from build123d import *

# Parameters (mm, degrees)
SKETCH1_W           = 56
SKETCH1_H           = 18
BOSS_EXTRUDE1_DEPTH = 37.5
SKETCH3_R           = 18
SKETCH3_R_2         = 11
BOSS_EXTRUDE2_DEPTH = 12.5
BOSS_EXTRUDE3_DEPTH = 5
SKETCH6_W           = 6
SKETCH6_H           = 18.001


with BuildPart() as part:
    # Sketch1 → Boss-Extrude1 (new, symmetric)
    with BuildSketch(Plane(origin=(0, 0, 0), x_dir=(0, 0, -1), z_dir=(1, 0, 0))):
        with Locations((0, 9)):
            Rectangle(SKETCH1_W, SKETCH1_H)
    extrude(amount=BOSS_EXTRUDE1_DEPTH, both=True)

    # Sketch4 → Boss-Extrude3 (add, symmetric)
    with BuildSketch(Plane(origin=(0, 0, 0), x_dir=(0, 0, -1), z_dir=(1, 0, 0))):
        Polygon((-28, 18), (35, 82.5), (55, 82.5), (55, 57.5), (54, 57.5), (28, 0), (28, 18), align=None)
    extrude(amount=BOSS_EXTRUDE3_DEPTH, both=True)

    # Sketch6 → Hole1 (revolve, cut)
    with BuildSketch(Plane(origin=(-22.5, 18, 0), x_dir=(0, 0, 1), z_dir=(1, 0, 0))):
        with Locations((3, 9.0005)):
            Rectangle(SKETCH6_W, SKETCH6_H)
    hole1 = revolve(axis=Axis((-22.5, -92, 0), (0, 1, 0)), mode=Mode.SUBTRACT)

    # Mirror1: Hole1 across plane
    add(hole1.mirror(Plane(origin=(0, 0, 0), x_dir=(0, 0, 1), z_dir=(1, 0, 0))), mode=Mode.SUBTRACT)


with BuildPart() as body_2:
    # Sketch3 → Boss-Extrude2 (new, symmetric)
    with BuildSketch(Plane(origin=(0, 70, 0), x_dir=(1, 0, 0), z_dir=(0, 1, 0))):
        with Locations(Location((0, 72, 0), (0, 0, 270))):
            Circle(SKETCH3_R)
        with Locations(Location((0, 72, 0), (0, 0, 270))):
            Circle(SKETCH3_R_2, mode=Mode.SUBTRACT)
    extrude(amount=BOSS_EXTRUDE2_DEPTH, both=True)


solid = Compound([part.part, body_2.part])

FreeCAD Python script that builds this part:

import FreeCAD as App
import Part
import Sketcher
from FreeCAD import Vector
Q = App.Units.Quantity

doc = App.newDocument("Part")
body = doc.addObject("PartDesign::Body", "Body")

# Sketch on YZ plane
sketch1 = doc.addObject("Sketcher::SketchObject", "Sketch")
body.addObject(sketch1)
sketch1.AttachmentSupport = (doc.YZ_Plane, [""])
sketch1.MapMode = "FlatFace"
sketch1.addGeometry([
    Part.LineSegment(Vector(18, 28, 0), Vector(0, 28, 0)),
    Part.LineSegment(Vector(0, 28, 0), Vector(0, -28, 0)),
    Part.LineSegment(Vector(0, -28, 0), Vector(18, -28, 0)),
    Part.LineSegment(Vector(18, -28, 0), Vector(18, 28, 0)),
], False)
sketch1.addConstraint([
    Sketcher.Constraint("Coincident", 0, 2, 1, 1),
    Sketcher.Constraint("Coincident", 1, 2, 2, 1),
    Sketcher.Constraint("Coincident", 2, 2, 3, 1),
    Sketcher.Constraint("Coincident", 3, 2, 0, 1),
    Sketcher.Constraint("Horizontal", 0),
    Sketcher.Constraint("Vertical", 1),
    Sketcher.Constraint("Horizontal", 2),
    Sketcher.Constraint("Vertical", 3),
    Sketcher.Constraint("Symmetric", 0, 2, 1, 2, -1, 1),
    Sketcher.Constraint("DistanceX", 0, 2, 0, 1, Q("18 mm")),
    Sketcher.Constraint("DistanceY", 1, 2, 1, 1, Q("56 mm")),
])
pad1 = doc.addObject("PartDesign::Pad", "Pad")
body.addObject(pad1)
pad1.Profile = sketch1
pad1.Length = 75
pad1.Midplane = True

# Sketch on YZ plane
sketch2 = doc.addObject("Sketcher::SketchObject", "Sketch001")
body.addObject(sketch2)
sketch2.AttachmentSupport = (doc.YZ_Plane, [""])
sketch2.MapMode = "FlatFace"
sketch2.addGeometry([
    Part.LineSegment(Vector(82.5, -35, 0), Vector(18, 28, 0)),  # 0
    Part.LineSegment(Vector(18, 28, 0), Vector(18, -28, 0)),  # 1
    Part.LineSegment(Vector(18, -28, 0), Vector(0, -28, 0)),  # 2
    Part.LineSegment(Vector(0, -28, 0), Vector(57.5, -54, 0)),  # 3
    Part.LineSegment(Vector(57.5, -54, 0), Vector(57.5, -55, 0)),  # 4
    Part.LineSegment(Vector(57.5, -55, 0), Vector(82.5, -55, 0)),  # 5
    Part.LineSegment(Vector(82.5, -55, 0), Vector(82.5, -35, 0)),  # 6
], False)
sketch2.addConstraint([
    Sketcher.Constraint("Coincident", 0, 2, 1, 1),
    Sketcher.Constraint("Coincident", 1, 2, 2, 1),
    Sketcher.Constraint("Coincident", 2, 2, 3, 1),
    Sketcher.Constraint("Coincident", 3, 2, 4, 1),
    Sketcher.Constraint("Coincident", 4, 2, 5, 1),
    Sketcher.Constraint("Coincident", 5, 2, 6, 1),
    Sketcher.Constraint("Coincident", 6, 2, 0, 1),
    Sketcher.Constraint("Vertical", 1),
    Sketcher.Constraint("Horizontal", 2),
    Sketcher.Constraint("Vertical", 4),
    Sketcher.Constraint("Horizontal", 5),
    Sketcher.Constraint("Vertical", 6),
    Sketcher.Constraint("PointOnObject", 2, 2, -2),
    Sketcher.Constraint("DistanceX", 2, 2, 2, 1, Q("18 mm")),
    Sketcher.Constraint("DistanceX", 5, 1, 5, 2, Q("25 mm")),
    Sketcher.Constraint("DistanceY", 1, 2, 1, 1, Q("56 mm")),
    Sketcher.Constraint("DistanceY", 4, 2, 4, 1, Q("1 mm")),
    Sketcher.Constraint("DistanceY", 6, 1, 6, 2, Q("20 mm")),
    Sketcher.Constraint("DistanceY", -1, 1, 0, 2, Q("28 mm")),
    Sketcher.Constraint("DistanceY", 3, 2, -1, 1, Q("54 mm")),
    Sketcher.Constraint("DistanceX", -1, 1, 3, 2, Q("57.5 mm")),
])
pad2 = doc.addObject("PartDesign::Pad", "Pad001")
body.addObject(pad2)
pad2.Profile = sketch2
pad2.Length = 10
pad2.Midplane = True

# Sketch on YZ plane
sketch3 = doc.addObject("Sketcher::SketchObject", "Sketch002")
body.addObject(sketch3)
sketch3.AttachmentSupport = (doc.YZ_Plane, [""])
sketch3.MapMode = "FlatFace"
sketch3.AttachmentOffset = App.Placement(Vector(0, 0, -22.5), App.Rotation())
sketch3.addGeometry([
    Part.LineSegment(Vector(0, 0, 0), Vector(18, 0, 0)),
    Part.LineSegment(Vector(18, 0, 0), Vector(18, 6, 0)),
    Part.LineSegment(Vector(18, 6, 0), Vector(0, 6, 0)),
    Part.LineSegment(Vector(0, 6, 0), Vector(0, 0, 0)),
], False)
sketch3.addConstraint([
    Sketcher.Constraint("Coincident", 0, 2, 1, 1),
    Sketcher.Constraint("Coincident", 1, 2, 2, 1),
    Sketcher.Constraint("Coincident", 2, 2, 3, 1),
    Sketcher.Constraint("Coincident", 3, 2, 0, 1),
    Sketcher.Constraint("Horizontal", 0),
    Sketcher.Constraint("Vertical", 1),
    Sketcher.Constraint("Horizontal", 2),
    Sketcher.Constraint("Vertical", 3),
    Sketcher.Constraint("PointOnObject", 0, 2, -1),
    Sketcher.Constraint("DistanceY", 1, 1, 1, 2, Q("6 mm")),
    Sketcher.Constraint("DistanceX", -1, 1, 0, 2, Q("18 mm")),
    Sketcher.Constraint("DistanceX", 0, 1, 0, 2, Q("18.001 mm")),
])
groove = doc.addObject("PartDesign::Groove", "Groove")
body.addObject(groove)
groove.Profile = sketch3
groove.ReferenceAxis = (sketch3, ["H_Axis"])
groove.Angle = 360
doc.recompute()

mirrored = doc.addObject("PartDesign::Mirrored", "Mirrored")
body.addObject(mirrored)
mirrored.Originals = [groove]
mirrored.MirrorPlane = (doc.YZ_Plane, [""])
body.Tip = mirrored
body2 = doc.addObject("PartDesign::Body", "Body001")

# Sketch on XZ plane
sketch4 = doc.addObject("Sketcher::SketchObject", "Sketch003")
body2.addObject(sketch4)
sketch4.AttachmentSupport = (doc.getObject("XZ_Plane001"), [""])
sketch4.MapMode = "FlatFace"
sketch4.AttachmentOffset = App.Placement(Vector(0, 0, -70), App.Rotation())
sketch4.addGeometry([
    Part.Circle(Vector(0, -72, 0), Vector(0, 0, 1), 18),
    Part.Circle(Vector(0, -72, 0), Vector(0, 0, 1), 11),
], False)
sketch4.addConstraint([
    Sketcher.Constraint("Coincident", 1, 3, 0, 3),
    Sketcher.Constraint("PointOnObject", 0, 3, -2),
    Sketcher.Constraint("Diameter", 0, Q("36 mm")),
    Sketcher.Constraint("Diameter", 1, Q("22 mm")),
    Sketcher.Constraint("DistanceY", 0, 3, -1, 1, Q("72 mm")),
])
pad3 = doc.addObject("PartDesign::Pad", "Pad002")
body2.addObject(pad3)
pad3.Profile = sketch4
pad3.Length = 25
pad3.Midplane = True

doc.recompute()
